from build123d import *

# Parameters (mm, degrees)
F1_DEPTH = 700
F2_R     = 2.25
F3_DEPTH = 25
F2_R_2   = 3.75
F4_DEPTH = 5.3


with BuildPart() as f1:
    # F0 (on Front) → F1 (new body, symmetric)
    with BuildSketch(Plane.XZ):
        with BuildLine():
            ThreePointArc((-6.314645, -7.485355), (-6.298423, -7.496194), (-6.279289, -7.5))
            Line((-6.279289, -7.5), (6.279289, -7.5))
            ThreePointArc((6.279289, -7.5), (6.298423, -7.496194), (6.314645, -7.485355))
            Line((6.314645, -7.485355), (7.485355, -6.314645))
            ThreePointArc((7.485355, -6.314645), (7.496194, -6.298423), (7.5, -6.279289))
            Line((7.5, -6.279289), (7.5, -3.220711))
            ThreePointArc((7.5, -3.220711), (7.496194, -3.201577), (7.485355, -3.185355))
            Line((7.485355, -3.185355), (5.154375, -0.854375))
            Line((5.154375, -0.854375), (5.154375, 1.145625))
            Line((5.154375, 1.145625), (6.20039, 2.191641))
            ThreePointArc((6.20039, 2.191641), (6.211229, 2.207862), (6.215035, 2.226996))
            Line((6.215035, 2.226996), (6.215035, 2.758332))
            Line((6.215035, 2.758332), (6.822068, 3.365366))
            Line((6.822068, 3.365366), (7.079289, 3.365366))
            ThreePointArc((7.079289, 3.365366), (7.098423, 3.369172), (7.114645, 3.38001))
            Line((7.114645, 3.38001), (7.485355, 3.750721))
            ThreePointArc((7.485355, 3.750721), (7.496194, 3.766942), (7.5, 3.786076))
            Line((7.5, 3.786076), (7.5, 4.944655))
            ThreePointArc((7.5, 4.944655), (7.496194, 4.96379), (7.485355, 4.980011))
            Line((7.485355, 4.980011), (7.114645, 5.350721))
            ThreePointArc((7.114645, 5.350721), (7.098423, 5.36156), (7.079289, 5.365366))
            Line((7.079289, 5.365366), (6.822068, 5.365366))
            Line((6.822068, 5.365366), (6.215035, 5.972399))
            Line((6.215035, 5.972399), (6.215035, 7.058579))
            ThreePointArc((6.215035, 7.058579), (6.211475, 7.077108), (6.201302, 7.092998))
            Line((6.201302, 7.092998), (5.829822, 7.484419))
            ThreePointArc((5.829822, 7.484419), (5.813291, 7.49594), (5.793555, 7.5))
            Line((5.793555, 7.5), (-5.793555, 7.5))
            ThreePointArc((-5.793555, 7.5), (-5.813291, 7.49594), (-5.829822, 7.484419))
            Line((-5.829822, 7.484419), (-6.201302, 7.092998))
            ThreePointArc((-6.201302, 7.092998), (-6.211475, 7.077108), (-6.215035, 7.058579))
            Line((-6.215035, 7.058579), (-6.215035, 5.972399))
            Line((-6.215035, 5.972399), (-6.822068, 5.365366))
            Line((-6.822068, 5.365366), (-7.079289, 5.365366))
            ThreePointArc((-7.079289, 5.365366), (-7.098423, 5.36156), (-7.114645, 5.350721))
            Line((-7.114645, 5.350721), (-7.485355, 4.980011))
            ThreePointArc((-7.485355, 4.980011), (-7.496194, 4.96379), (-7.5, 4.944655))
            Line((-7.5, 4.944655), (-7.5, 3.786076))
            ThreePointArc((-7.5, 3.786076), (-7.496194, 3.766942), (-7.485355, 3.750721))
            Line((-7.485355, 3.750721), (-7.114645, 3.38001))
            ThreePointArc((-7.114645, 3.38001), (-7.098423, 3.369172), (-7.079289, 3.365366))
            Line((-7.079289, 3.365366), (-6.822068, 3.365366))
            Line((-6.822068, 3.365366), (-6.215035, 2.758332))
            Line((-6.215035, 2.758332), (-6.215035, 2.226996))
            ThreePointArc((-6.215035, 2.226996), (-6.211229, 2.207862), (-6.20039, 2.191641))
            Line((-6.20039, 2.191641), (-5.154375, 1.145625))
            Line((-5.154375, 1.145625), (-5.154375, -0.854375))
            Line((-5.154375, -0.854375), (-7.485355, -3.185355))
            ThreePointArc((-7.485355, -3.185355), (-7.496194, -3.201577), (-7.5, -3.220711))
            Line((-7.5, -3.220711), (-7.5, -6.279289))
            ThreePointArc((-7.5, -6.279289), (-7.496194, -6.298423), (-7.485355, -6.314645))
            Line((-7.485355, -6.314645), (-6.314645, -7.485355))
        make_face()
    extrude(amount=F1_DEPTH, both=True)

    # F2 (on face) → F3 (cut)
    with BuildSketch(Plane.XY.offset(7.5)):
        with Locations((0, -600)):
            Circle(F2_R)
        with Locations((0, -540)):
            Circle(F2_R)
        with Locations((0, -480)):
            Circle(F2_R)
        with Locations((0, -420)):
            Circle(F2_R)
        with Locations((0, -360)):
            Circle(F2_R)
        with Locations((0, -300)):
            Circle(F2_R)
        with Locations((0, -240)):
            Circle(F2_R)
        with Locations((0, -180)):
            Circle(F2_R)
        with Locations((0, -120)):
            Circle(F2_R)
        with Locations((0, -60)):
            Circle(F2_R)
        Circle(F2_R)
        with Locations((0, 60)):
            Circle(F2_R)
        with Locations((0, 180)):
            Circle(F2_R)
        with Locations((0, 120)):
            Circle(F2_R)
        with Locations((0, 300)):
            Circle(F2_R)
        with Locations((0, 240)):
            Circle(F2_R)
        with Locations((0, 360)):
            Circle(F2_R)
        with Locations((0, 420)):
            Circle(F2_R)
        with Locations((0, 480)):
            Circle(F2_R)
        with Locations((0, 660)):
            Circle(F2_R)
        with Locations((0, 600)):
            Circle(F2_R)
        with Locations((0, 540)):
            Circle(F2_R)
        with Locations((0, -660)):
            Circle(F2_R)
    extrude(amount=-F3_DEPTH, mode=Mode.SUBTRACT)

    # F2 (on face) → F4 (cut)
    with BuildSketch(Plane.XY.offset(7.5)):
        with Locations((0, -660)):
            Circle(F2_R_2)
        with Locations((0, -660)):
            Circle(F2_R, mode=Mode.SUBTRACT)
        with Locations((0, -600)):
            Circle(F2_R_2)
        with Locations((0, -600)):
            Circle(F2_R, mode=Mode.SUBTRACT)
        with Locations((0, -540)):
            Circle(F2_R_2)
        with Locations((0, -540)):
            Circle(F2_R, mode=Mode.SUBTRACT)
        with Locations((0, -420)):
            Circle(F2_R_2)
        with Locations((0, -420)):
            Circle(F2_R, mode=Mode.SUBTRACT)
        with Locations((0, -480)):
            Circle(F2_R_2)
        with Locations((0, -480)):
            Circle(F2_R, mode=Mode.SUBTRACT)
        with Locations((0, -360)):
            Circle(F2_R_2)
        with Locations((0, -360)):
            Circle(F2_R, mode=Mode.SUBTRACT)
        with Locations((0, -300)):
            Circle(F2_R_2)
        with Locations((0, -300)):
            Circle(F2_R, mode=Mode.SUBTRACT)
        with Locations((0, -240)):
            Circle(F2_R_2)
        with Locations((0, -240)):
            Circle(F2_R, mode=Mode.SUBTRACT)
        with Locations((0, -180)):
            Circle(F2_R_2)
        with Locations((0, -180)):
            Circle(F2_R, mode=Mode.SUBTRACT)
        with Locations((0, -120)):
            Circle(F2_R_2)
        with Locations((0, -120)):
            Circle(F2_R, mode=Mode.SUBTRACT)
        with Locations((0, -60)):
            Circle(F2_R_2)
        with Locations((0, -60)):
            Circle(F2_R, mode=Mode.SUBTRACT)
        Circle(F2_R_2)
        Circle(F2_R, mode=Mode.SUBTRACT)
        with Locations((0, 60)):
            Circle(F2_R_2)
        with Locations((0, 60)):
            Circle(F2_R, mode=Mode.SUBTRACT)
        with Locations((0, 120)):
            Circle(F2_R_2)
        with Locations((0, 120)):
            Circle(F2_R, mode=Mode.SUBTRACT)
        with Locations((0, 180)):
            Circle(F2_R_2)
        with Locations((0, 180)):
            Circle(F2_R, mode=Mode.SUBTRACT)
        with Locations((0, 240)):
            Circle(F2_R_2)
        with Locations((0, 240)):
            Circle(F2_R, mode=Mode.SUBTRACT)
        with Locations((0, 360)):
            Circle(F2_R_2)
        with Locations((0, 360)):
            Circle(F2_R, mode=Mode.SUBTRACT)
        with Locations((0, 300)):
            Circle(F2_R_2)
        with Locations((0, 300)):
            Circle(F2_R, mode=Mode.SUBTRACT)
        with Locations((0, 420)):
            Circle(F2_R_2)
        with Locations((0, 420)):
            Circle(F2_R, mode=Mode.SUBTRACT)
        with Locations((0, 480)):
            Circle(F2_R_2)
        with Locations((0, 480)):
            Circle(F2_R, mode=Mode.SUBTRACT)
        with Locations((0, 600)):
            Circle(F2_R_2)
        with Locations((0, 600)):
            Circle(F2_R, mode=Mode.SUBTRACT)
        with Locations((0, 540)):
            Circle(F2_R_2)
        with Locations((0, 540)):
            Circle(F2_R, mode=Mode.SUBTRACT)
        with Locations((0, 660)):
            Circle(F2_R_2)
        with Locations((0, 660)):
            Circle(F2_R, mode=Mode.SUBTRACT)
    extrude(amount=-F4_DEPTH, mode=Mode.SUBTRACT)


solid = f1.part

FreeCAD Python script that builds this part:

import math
import FreeCAD as App
import Part
import Sketcher
Q = App.Units.Quantity

doc = App.newDocument("Part")
body = doc.addObject("PartDesign::Body", "Body")

sketch1 = body.newObject("Sketcher::SketchObject", "Sketch")
sketch1.AttachmentSupport = (doc.getObject("XZ_Plane"), [""])
sketch1.MapMode = "FlatFace"
sketch1.addGeometry(Part.ArcOfCircle(Part.Circle(App.Vector(-6.279, -7.45, 0), App.Vector(0, 0, 1), 0.05), math.radians(-135), math.radians(-90)), False)
sketch1.addGeometry(Part.LineSegment(App.Vector(-6.279, -7.5, 0), App.Vector(6.279, -7.5, 0)), False)
sketch1.addGeometry(Part.ArcOfCircle(Part.Circle(App.Vector(6.279, -7.45, 0), App.Vector(0, 0, 1), 0.05), math.radians(-90), math.radians(-45)), False)
sketch1.addGeometry(Part.LineSegment(App.Vector(6.315, -7.485, 0), App.Vector(7.485, -6.315, 0)), False)
sketch1.addGeometry(Part.ArcOfCircle(Part.Circle(App.Vector(7.45, -6.279, 0), App.Vector(0, 0, 1), 0.05), math.radians(-45), math.radians(0)), False)
sketch1.addGeometry(Part.LineSegment(App.Vector(7.5, -6.279, 0), App.Vector(7.5, -3.221, 0)), False)
sketch1.addGeometry(Part.ArcOfCircle(Part.Circle(App.Vector(7.45, -3.221, 0), App.Vector(0, 0, 1), 0.05), math.radians(0), math.radians(45)), False)
sketch1.addGeometry(Part.LineSegment(App.Vector(7.485, -3.185, 0), App.Vector(5.154, -0.854, 0)), False)
sketch1.addGeometry(Part.LineSegment(App.Vector(5.154, -0.854, 0), App.Vector(5.154, 1.146, 0)), False)
sketch1.addGeometry(Part.LineSegment(App.Vector(5.154, 1.146, 0), App.Vector(6.2, 2.192, 0)), False)
sketch1.addGeometry(Part.ArcOfCircle(Part.Circle(App.Vector(6.165, 2.227, 0), App.Vector(0, 0, 1), 0.05), math.radians(-45), math.radians(0)), False)
sketch1.addGeometry(Part.LineSegment(App.Vector(6.215, 2.227, 0), App.Vector(6.215, 2.758, 0)), False)
sketch1.addGeometry(Part.LineSegment(App.Vector(6.215, 2.758, 0), App.Vector(6.822, 3.365, 0)), False)
sketch1.addGeometry(Part.LineSegment(App.Vector(6.822, 3.365, 0), App.Vector(7.079, 3.365, 0)), False)
sketch1.addGeometry(Part.ArcOfCircle(Part.Circle(App.Vector(7.079, 3.415, 0), App.Vector(0, 0, 1), 0.05), math.radians(-90), math.radians(-45)), False)
sketch1.addGeometry(Part.LineSegment(App.Vector(7.115, 3.38, 0), App.Vector(7.485, 3.751, 0)), False)
sketch1.addGeometry(Part.ArcOfCircle(Part.Circle(App.Vector(7.45, 3.786, 0), App.Vector(0, 0, 1), 0.05), math.radians(-45), math.radians(0)), False)
sketch1.addGeometry(Part.LineSegment(App.Vector(7.5, 3.786, 0), App.Vector(7.5, 4.945, 0)), False)
sketch1.addGeometry(Part.ArcOfCircle(Part.Circle(App.Vector(7.45, 4.945, 0), App.Vector(0, 0, 1), 0.05), math.radians(0), math.radians(45)), False)
sketch1.addGeometry(Part.LineSegment(App.Vector(7.485, 4.98, 0), App.Vector(7.115, 5.351, 0)), False)
sketch1.addGeometry(Part.ArcOfCircle(Part.Circle(App.Vector(7.079, 5.315, 0), App.Vector(0, 0, 1), 0.05), math.radians(45), math.radians(90)), False)
sketch1.addGeometry(Part.LineSegment(App.Vector(7.079, 5.365, 0), App.Vector(6.822, 5.365, 0)), False)
sketch1.addGeometry(Part.LineSegment(App.Vector(6.822, 5.365, 0), App.Vector(6.215, 5.972, 0)), False)
sketch1.addGeometry(Part.LineSegment(App.Vector(6.215, 5.972, 0), App.Vector(6.215, 7.059, 0)), False)
sketch1.addGeometry(Part.ArcOfCircle(Part.Circle(App.Vector(6.165, 7.059, 0), App.Vector(0, 0, 1), 0.05), math.radians(0), math.radians(44)), False)
sketch1.addGeometry(Part.LineSegment(App.Vector(6.201, 7.093, 0), App.Vector(5.83, 7.484, 0)), False)
sketch1.addGeometry(Part.ArcOfCircle(Part.Circle(App.Vector(5.794, 7.45, 0), App.Vector(0, 0, 1), 0.05), math.radians(44), math.radians(90)), False)
sketch1.addGeometry(Part.LineSegment(App.Vector(5.794, 7.5, 0), App.Vector(-5.794, 7.5, 0)), False)
sketch1.addGeometry(Part.ArcOfCircle(Part.Circle(App.Vector(-5.794, 7.45, 0), App.Vector(0, 0, 1), 0.05), math.radians(90), math.radians(136)), False)
sketch1.addGeometry(Part.LineSegment(App.Vector(-5.83, 7.484, 0), App.Vector(-6.201, 7.093, 0)), False)
sketch1.addGeometry(Part.ArcOfCircle(Part.Circle(App.Vector(-6.165, 7.059, 0), App.Vector(0, 0, 1), 0.05), math.radians(136), math.radians(180)), False)
sketch1.addGeometry(Part.LineSegment(App.Vector(-6.215, 7.059, 0), App.Vector(-6.215, 5.972, 0)), False)
sketch1.addGeometry(Part.LineSegment(App.Vector(-6.215, 5.972, 0), App.Vector(-6.822, 5.365, 0)), False)
sketch1.addGeometry(Part.LineSegment(App.Vector(-6.822, 5.365, 0), App.Vector(-7.079, 5.365, 0)), False)
sketch1.addGeometry(Part.ArcOfCircle(Part.Circle(App.Vector(-7.079, 5.315, 0), App.Vector(0, 0, 1), 0.05), math.radians(90), math.radians(135)), False)
sketch1.addGeometry(Part.LineSegment(App.Vector(-7.115, 5.351, 0), App.Vector(-7.485, 4.98, 0)), False)
sketch1.addGeometry(Part.ArcOfCircle(Part.Circle(App.Vector(-7.45, 4.945, 0), App.Vector(0, 0, 1), 0.05), math.radians(135), math.radians(180)), False)
sketch1.addGeometry(Part.LineSegment(App.Vector(-7.5, 4.945, 0), App.Vector(-7.5, 3.786, 0)), False)
sketch1.addGeometry(Part.ArcOfCircle(Part.Circle(App.Vector(-7.45, 3.786, 0), App.Vector(0, 0, 1), 0.05), math.radians(180), math.radians(225)), False)
sketch1.addGeometry(Part.LineSegment(App.Vector(-7.485, 3.751, 0), App.Vector(-7.115, 3.38, 0)), False)
sketch1.addGeometry(Part.ArcOfCircle(Part.Circle(App.Vector(-7.079, 3.415, 0), App.Vector(0, 0, 1), 0.05), math.radians(-135), math.radians(-90)), False)
sketch1.addGeometry(Part.LineSegment(App.Vector(-7.079, 3.365, 0), App.Vector(-6.822, 3.365, 0)), False)
sketch1.addGeometry(Part.LineSegment(App.Vector(-6.822, 3.365, 0), App.Vector(-6.215, 2.758, 0)), False)
sketch1.addGeometry(Part.LineSegment(App.Vector(-6.215, 2.758, 0), App.Vector(-6.215, 2.227, 0)), False)
sketch1.addGeometry(Part.ArcOfCircle(Part.Circle(App.Vector(-6.165, 2.227, 0), App.Vector(0, 0, 1), 0.05), math.radians(180), math.radians(225)), False)
sketch1.addGeometry(Part.LineSegment(App.Vector(-6.2, 2.192, 0), App.Vector(-5.154, 1.146, 0)), False)
sketch1.addGeometry(Part.LineSegment(App.Vector(-5.154, 1.146, 0), App.Vector(-5.154, -0.854, 0)), False)
sketch1.addGeometry(Part.LineSegment(App.Vector(-5.154, -0.854, 0), App.Vector(-7.485, -3.185, 0)), False)
sketch1.addGeometry(Part.ArcOfCircle(Part.Circle(App.Vector(-7.45, -3.221, 0), App.Vector(0, 0, 1), 0.05), math.radians(135), math.radians(180)), False)
sketch1.addGeometry(Part.LineSegment(App.Vector(-7.5, -3.221, 0), App.Vector(-7.5, -6.279, 0)), False)
sketch1.addGeometry(Part.ArcOfCircle(Part.Circle(App.Vector(-7.45, -6.279, 0), App.Vector(0, 0, 1), 0.05), math.radians(-180), math.radians(-135)), False)
sketch1.addGeometry(Part.LineSegment(App.Vector(-7.485, -6.315, 0), App.Vector(-6.315, -7.485, 0)), False)
sketch1.addConstraint(Sketcher.Constraint("Coincident", 0, 2, 1, 1))
sketch1.addConstraint(Sketcher.Constraint("Coincident", 1, 2, 2, 1))
sketch1.addConstraint(Sketcher.Constraint("Coincident", 2, 2, 3, 1))
sketch1.addConstraint(Sketcher.Constraint("Coincident", 3, 2, 4, 1))
sketch1.addConstraint(Sketcher.Constraint("Coincident", 4, 2, 5, 1))
sketch1.addConstraint(Sketcher.Constraint("Coincident", 5, 2, 6, 1))
sketch1.addConstraint(Sketcher.Constraint("Coincident", 6, 2, 7, 1))
sketch1.addConstraint(Sketcher.Constraint("Coincident", 7, 2, 8, 1))
sketch1.addConstraint(Sketcher.Constraint("Coincident", 8, 2, 9, 1))
sketch1.addConstraint(Sketcher.Constraint("Coincident", 9, 2, 10, 1))
sketch1.addConstraint(Sketcher.Constraint("Coincident", 10, 2, 11, 1))
sketch1.addConstraint(Sketcher.Constraint("Coincident", 11, 2, 12, 1))
sketch1.addConstraint(Sketcher.Constraint("Coincident", 12, 2, 13, 1))
sketch1.addConstraint(Sketcher.Constraint("Coincident", 13, 2, 14, 1))
sketch1.addConstraint(Sketcher.Constraint("Coincident", 14, 2, 15, 1))
sketch1.addConstraint(Sketcher.Constraint("Coincident", 15, 2, 16, 1))
sketch1.addConstraint(Sketcher.Constraint("Coincident", 16, 2, 17, 1))
sketch1.addConstraint(Sketcher.Constraint("Coincident", 17, 2, 18, 1))
sketch1.addConstraint(Sketcher.Constraint("Coincident", 18, 2, 19, 1))
sketch1.addConstraint(Sketcher.Constraint("Coincident", 19, 2, 20, 1))
sketch1.addConstraint(Sketcher.Constraint("Coincident", 20, 2, 21, 1))
sketch1.addConstraint(Sketcher.Constraint("Coincident", 21, 2, 22, 1))
sketch1.addConstraint(Sketcher.Constraint("Coincident", 22, 2, 23, 1))
sketch1.addConstraint(Sketcher.Constraint("Coincident", 23, 2, 24, 1))
sketch1.addConstraint(Sketcher.Constraint("Coincident", 24, 2, 25, 1))
sketch1.addConstraint(Sketcher.Constraint("Coincident", 25, 2, 26, 1))
sketch1.addConstraint(Sketcher.Constraint("Coincident", 26, 2, 27, 1))
sketch1.addConstraint(Sketcher.Constraint("Coincident", 27, 2, 28, 1))
sketch1.addConstraint(Sketcher.Constraint("Coincident", 28, 2, 29, 1))
sketch1.addConstraint(Sketcher.Constraint("Coincident", 29, 2, 30, 1))
sketch1.addConstraint(Sketcher.Constraint("Coincident", 30, 2, 31, 1))
sketch1.addConstraint(Sketcher.Constraint("Coincident", 31, 2, 32, 1))
sketch1.addConstraint(Sketcher.Constraint("Coincident", 32, 2, 33, 1))
sketch1.addConstraint(Sketcher.Constraint("Coincident", 33, 2, 34, 1))
sketch1.addConstraint(Sketcher.Constraint("Coincident", 34, 2, 35, 1))
sketch1.addConstraint(Sketcher.Constraint("Coincident", 35, 2, 36, 1))
sketch1.addConstraint(Sketcher.Constraint("Coincident", 36, 2, 37, 1))
sketch1.addConstraint(Sketcher.Constraint("Coincident", 37, 2, 38, 1))
sketch1.addConstraint(Sketcher.Constraint("Coincident", 38, 2, 39, 1))
sketch1.addConstraint(Sketcher.Constraint("Coincident", 39, 2, 40, 1))
sketch1.addConstraint(Sketcher.Constraint("Coincident", 40, 2, 41, 1))
sketch1.addConstraint(Sketcher.Constraint("Coincident", 41, 2, 42, 1))
sketch1.addConstraint(Sketcher.Constraint("Coincident", 42, 2, 43, 1))
sketch1.addConstraint(Sketcher.Constraint("Coincident", 43, 2, 44, 1))
sketch1.addConstraint(Sketcher.Constraint("Coincident", 44, 2, 45, 1))
sketch1.addConstraint(Sketcher.Constraint("Coincident", 45, 2, 46, 1))
sketch1.addConstraint(Sketcher.Constraint("Coincident", 46, 2, 47, 1))
sketch1.addConstraint(Sketcher.Constraint("Coincident", 47, 2, 48, 1))
sketch1.addConstraint(Sketcher.Constraint("Coincident", 48, 2, 49, 1))
sketch1.addConstraint(Sketcher.Constraint("Coincident", 49, 2, 50, 1))
sketch1.addConstraint(Sketcher.Constraint("Coincident", 50, 2, 51, 1))
sketch1.addConstraint(Sketcher.Constraint("Coincident", 51, 2, 0, 1))
sketch1.addConstraint(Sketcher.Constraint("Horizontal", 1))
sketch1.addConstraint(Sketcher.Constraint("Vertical", 5))
sketch1.addConstraint(Sketcher.Constraint("Vertical", 8))
sketch1.addConstraint(Sketcher.Constraint("Vertical", 11))
sketch1.addConstraint(Sketcher.Constraint("Horizontal", 13))
sketch1.addConstraint(Sketcher.Constraint("Vertical", 17))
sketch1.addConstraint(Sketcher.Constraint("Horizontal", 21))
sketch1.addConstraint(Sketcher.Constraint("Vertical", 23))
sketch1.addConstraint(Sketcher.Constraint("Horizontal", 27))
sketch1.addConstraint(Sketcher.Constraint("Vertical", 31))
sketch1.addConstraint(Sketcher.Constraint("Horizontal", 33))
sketch1.addConstraint(Sketcher.Constraint("Vertical", 37))
sketch1.addConstraint(Sketcher.Constraint("Horizontal", 41))
sketch1.addConstraint(Sketcher.Constraint("Vertical", 43))
sketch1.addConstraint(Sketcher.Constraint("Vertical", 46))
sketch1.addConstraint(Sketcher.Constraint("Vertical", 49))
sketch1.addConstraint(Sketcher.Constraint("Equal", 0, 2))
sketch1.addConstraint(Sketcher.Constraint("Equal", 2, 4))
sketch1.addConstraint(Sketcher.Constraint("Equal", 4, 6))
sketch1.addConstraint(Sketcher.Constraint("Equal", 10, 16))
sketch1.addConstraint(Sketcher.Constraint("Equal", 16, 18))
sketch1.addConstraint(Sketcher.Constraint("Equal", 6, 20))
sketch1.addConstraint(Sketcher.Constraint("Equal", 18, 24))
sketch1.addConstraint(Sketcher.Constraint("Equal", 24, 26))
sketch1.addConstraint(Sketcher.Constraint("Equal", 26, 28))
sketch1.addConstraint(Sketcher.Constraint("Equal", 28, 30))
sketch1.addConstraint(Sketcher.Constraint("Equal", 20, 34))
sketch1.addConstraint(Sketcher.Constraint("Equal", 30, 36))
sketch1.addConstraint(Sketcher.Constraint("Equal", 36, 38))
sketch1.addConstraint(Sketcher.Constraint("Equal", 14, 40))
sketch1.addConstraint(Sketcher.Constraint("Equal", 38, 44))
sketch1.addConstraint(Sketcher.Constraint("Equal", 34, 48))
sketch1.addConstraint(Sketcher.Constraint("Equal", 48, 50))
sketch1.addConstraint(Sketcher.Constraint("Symmetric", 24, 3, 30, 3, -2))
sketch1.addConstraint(Sketcher.Constraint("Symmetric", 20, 3, 34, 3, -2))
sketch1.addConstraint(Sketcher.Constraint("Symmetric", 18, 3, 36, 3, -2))
sketch1.addConstraint(Sketcher.Constraint("Symmetric", 14, 3, 40, 3, -2))
sketch1.addConstraint(Sketcher.Constraint("Symmetric", 10, 3, 44, 3, -2))
sketch1.addConstraint(Sketcher.Constraint("Symmetric", 6, 3, 48, 3, -2))
sketch1.addConstraint(Sketcher.Constraint("Symmetric", 25, 2, 28, 2, -2))
sketch1.addConstraint(Sketcher.Constraint("Symmetric", 15, 2, 38, 2, -2))
sketch1.addConstraint(Sketcher.Constraint("Symmetric", 8, 2, 45, 2, -2))
sketch1.addConstraint(Sketcher.Constraint("Symmetric", 3, 2, 50, 2, -2))
sketch1.addConstraint(Sketcher.Constraint("Symmetric", 2, 2, 51, 2, -2))
sketch1.addConstraint(Sketcher.Constraint("Perpendicular", 3, 7))
sketch1.addConstraint(Sketcher.Constraint("Perpendicular", 7, 9))
sketch1.addConstraint(Sketcher.Constraint("Parallel", 9, 12))
sketch1.addConstraint(Sketcher.Constraint("Parallel", 12, 15))
sketch1.addConstraint(Sketcher.Constraint("Perpendicular", 15, 19))
sketch1.addConstraint(Sketcher.Constraint("Parallel", 19, 22))
sketch1.addConstraint(Sketcher.Constraint("Perpendicular", 22, 32))
sketch1.addConstraint(Sketcher.Constraint("Parallel", 32, 35))
sketch1.addConstraint(Sketcher.Constraint("Parallel", 39, 42))
sketch1.addConstraint(Sketcher.Constraint("Perpendicular", 45, 47))
sketch1.addConstraint(Sketcher.Constraint("Horizontal", 50, 3, 4, 2))
sketch1.addConstraint(Sketcher.Constraint("Horizontal", 48, 3, 5, 2))
sketch1.addConstraint(Sketcher.Constraint("Horizontal", 44, 3, 10, 2))
sketch1.addConstraint(Sketcher.Constraint("Horizontal", 38, 3, 16, 2))
sketch1.addConstraint(Sketcher.Constraint("Horizontal", 36, 3, 17, 2))
sketch1.addConstraint(Sketcher.Constraint("Horizontal", 30, 3, 23, 2))
sketch1.addConstraint(Sketcher.Constraint("Horizontal", 24, 2, 29, 2))
sketch1.addConstraint(Sketcher.Constraint("Horizontal", 23, 2, 30, 2))
sketch1.addConstraint(Sketcher.Constraint("Horizontal", 22, 2, 31, 2))
sketch1.addConstraint(Sketcher.Constraint("Horizontal", 19, 2, 34, 2))
sketch1.addConstraint(Sketcher.Constraint("Horizontal", 18, 2, 35, 2))
sketch1.addConstraint(Sketcher.Constraint("Horizontal", 17, 2, 36, 2))
sketch1.addConstraint(Sketcher.Constraint("Horizontal", 16, 2, 37, 2))
sketch1.addConstraint(Sketcher.Constraint("Horizontal", 14, 2, 39, 2))
sketch1.addConstraint(Sketcher.Constraint("Horizontal", 11, 2, 42, 2))
sketch1.addConstraint(Sketcher.Constraint("Horizontal", 10, 2, 43, 2))
sketch1.addConstraint(Sketcher.Constraint("Horizontal", 9, 2, 44, 2))
sketch1.addConstraint(Sketcher.Constraint("Horizontal", 6, 2, 47, 2))
sketch1.addConstraint(Sketcher.Constraint("Horizontal", 5, 2, 48, 2))
sketch1.addConstraint(Sketcher.Constraint("Horizontal", 4, 2, 49, 2))
sketch1.addConstraint(Sketcher.Constraint("Vertical", 14, 3, 20, 3))
sketch1.addConstraint(Sketcher.Constraint("Vertical", 10, 3, 24, 3))
sketch1.addConstraint(Sketcher.Constraint("Vertical", 2, 3, 1, 2))
sketch1.addConstraint(Sketcher.Constraint("Vertical", 3, 2, 6, 2))
sketch1.addConstraint(Sketcher.Constraint("Vertical", 20, 3, 13, 2))
sketch1.addConstraint(Sketcher.Constraint("Vertical", 6, 2, 15, 2))
sketch1.addConstraint(Sketcher.Constraint("Vertical", 5, 2, 16, 2))
sketch1.addConstraint(Sketcher.Constraint("Vertical", 15, 2, 18, 2))
sketch1.addConstraint(Sketcher.Constraint("Vertical", 14, 2, 19, 2))
sketch1.addConstraint(Sketcher.Constraint("Vertical", 13, 2, 20, 2))
sketch1.addConstraint(Sketcher.Constraint("Vertical", 12, 2, 21, 2))
sketch1.addConstraint(Sketcher.Constraint("Vertical", 28, 3, 27, 2))
sketch1.addConstraint(Sketcher.Constraint("Vertical", 40, 3, 33, 2))
sketch1.addConstraint(Sketcher.Constraint("Vertical", 33, 2, 40, 2))
sketch1.addConstraint(Sketcher.Constraint("DistanceY", 8, 1, 8, 2, Q("2 mm")))
sketch1.addConstraint(Sketcher.Constraint("Radius", 26, Q("0.049998 mm")))
sketch1.addConstraint(Sketcher.Constraint("DistanceY", 0, 2, -1, 1, Q("7.5 mm")))
sketch1.addConstraint(Sketcher.Constraint("DistanceX", -1, 1, 4, 2, Q("7.5 mm")))
sketch1.addConstraint(Sketcher.Constraint("DistanceY", -1, 1, 26, 2, Q("7.5 mm")))
sketch1.addConstraint(Sketcher.Constraint("Radius", 0, Q("0.050002 mm")))
sketch1.addConstraint(Sketcher.Constraint("Radius", 14, Q("0.050007 mm")))
sketch1.addConstraint(Sketcher.Constraint("DistanceX", 1, 1, 1, 2, Q("12.558578 mm")))
sketch1.addConstraint(Sketcher.Constraint("DistanceX", 13, 1, 13, 2, Q("0.257221 mm")))
sketch1.addConstraint(Sketcher.Constraint("DistanceX", 27, 2, 27, 1, Q("11.58711 mm")))
sketch1.addConstraint(Sketcher.Constraint("DistanceY", 5, 1, 5, 2, Q("3.058578 mm")))
sketch1.addConstraint(Sketcher.Constraint("DistanceY", 17, 1, 17, 2, Q("1.158579 mm")))
sketch1.addConstraint(Sketcher.Constraint("DistanceY", 23, 1, 23, 2, Q("1.08618 mm")))
sketch1.addConstraint(Sketcher.Constraint("DistanceY", -1, 1, 22, 2, Q("5.972399 mm")))
sketch1.addConstraint(Sketcher.Constraint("DistanceX", -1, 1, 24, 2, Q("6.201302 mm")))
sketch1.addConstraint(Sketcher.Constraint("Distance", 9, Q("1.479289 mm")))
sketch1.addConstraint(Sketcher.Constraint("DistanceY", 11, 1, 11, 2, Q("0.531336 mm")))
sketch1.addConstraint(Sketcher.Constraint("DistanceX", 0, 3, -1, 1, Q("6.279288 mm")))
sketch1.addConstraint(Sketcher.Constraint("DistanceX", -1, 1, 20, 3, Q("7.079288 mm")))
sketch1.addConstraint(Sketcher.Constraint("DistanceX", -1, 1, 9, 2, Q("6.20039 mm")))
sketch1.addConstraint(Sketcher.Constraint("DistanceY", -1, 1, 14, 2, Q("3.38001 mm")))
sketch1.addConstraint(Sketcher.Constraint("DistanceY", -1, 1, 15, 2, Q("3.750721 mm")))
sketch1.addConstraint(Sketcher.Constraint("DistanceY", -1, 1, 25, 2, Q("7.484419 mm")))
sketch1.addConstraint(Sketcher.Constraint("Distance", 3, Q("1.655634 mm")))
sketch1.addConstraint(Sketcher.Constraint("Distance", 25, Q("0.539637 mm")))
pad1 = body.newObject("PartDesign::Pad", "Pad")
pad1.Profile = sketch1
pad1.Length = 1400
pad1.Midplane = True

sketch2 = body.newObject("Sketcher::SketchObject", "Sketch001")
sketch2.AttachmentSupport = (doc.getObject("XY_Plane"), [""])
sketch2.MapMode = "FlatFace"
sketch2.AttachmentOffset = App.Placement(App.Vector(0, 0, 7.5), App.Rotation())
sketch2.addGeometry(Part.Circle(App.Vector(0, -600, 0), App.Vector(0, 0, 1), 2.2), False)
sketch2.addGeometry(Part.Circle(App.Vector(0, -540, 0), App.Vector(0, 0, 1), 2.2), False)
sketch2.addGeometry(Part.Circle(App.Vector(0, -480, 0), App.Vector(0, 0, 1), 2.2), False)
sketch2.addGeometry(Part.Circle(App.Vector(0, -420, 0), App.Vector(0, 0, 1), 2.2), False)
sketch2.addGeometry(Part.Circle(App.Vector(0, -360, 0), App.Vector(0, 0, 1), 2.2), False)
sketch2.addGeometry(Part.Circle(App.Vector(0, -300, 0), App.Vector(0, 0, 1), 2.2), False)
sketch2.addGeometry(Part.Circle(App.Vector(0, -240, 0), App.Vector(0, 0, 1), 2.2), False)
sketch2.addGeometry(Part.Circle(App.Vector(0, -180, 0), App.Vector(0, 0, 1), 2.2), False)
sketch2.addGeometry(Part.Circle(App.Vector(0, -120, 0), App.Vector(0, 0, 1), 2.2), False)
sketch2.addGeometry(Part.Circle(App.Vector(0, -60, 0), App.Vector(0, 0, 1), 2.2), False)
sketch2.addGeometry(Part.Circle(App.Vector(0, 0, 0), App.Vector(0, 0, 1), 2.2), False)
sketch2.addGeometry(Part.Circle(App.Vector(0, 60, 0), App.Vector(0, 0, 1), 2.2), False)
sketch2.addGeometry(Part.Circle(App.Vector(0, 180, 0), App.Vector(0, 0, 1), 2.2), False)
sketch2.addGeometry(Part.Circle(App.Vector(0, 120, 0), App.Vector(0, 0, 1), 2.2), False)
sketch2.addGeometry(Part.Circle(App.Vector(0, 300, 0), App.Vector(0, 0, 1), 2.2), False)
sketch2.addGeometry(Part.Circle(App.Vector(0, 240, 0), App.Vector(0, 0, 1), 2.2), False)
sketch2.addGeometry(Part.Circle(App.Vector(0, 360, 0), App.Vector(0, 0, 1), 2.2), False)
sketch2.addGeometry(Part.Circle(App.Vector(0, 420, 0), App.Vector(0, 0, 1), 2.2), False)
sketch2.addGeometry(Part.Circle(App.Vector(0, 480, 0), App.Vector(0, 0, 1), 2.2), False)
sketch2.addGeometry(Part.Circle(App.Vector(0, 660, 0), App.Vector(0, 0, 1), 2.2), False)
sketch2.addGeometry(Part.Circle(App.Vector(0, 600, 0), App.Vector(0, 0, 1), 2.2), False)
sketch2.addGeometry(Part.Circle(App.Vector(0, 540, 0), App.Vector(0, 0, 1), 2.2), False)
sketch2.addGeometry(Part.Circle(App.Vector(0, -660, 0), App.Vector(0, 0, 1), 2.2), False)
sketch2.addConstraint(Sketcher.Constraint("Coincident", 10, 3, -1, 1))
sketch2.addConstraint(Sketcher.Constraint("Equal", 0, 1))
sketch2.addConstraint(Sketcher.Constraint("Equal", 1, 2))
sketch2.addConstraint(Sketcher.Constraint("Equal", 2, 3))
sketch2.addConstraint(Sketcher.Constraint("Equal", 3, 4))
sketch2.addConstraint(Sketcher.Constraint("Equal", 4, 5))
sketch2.addConstraint(Sketcher.Constraint("Equal", 5, 6))
sketch2.addConstraint(Sketcher.Constraint("Equal", 6, 7))
sketch2.addConstraint(Sketcher.Constraint("Equal", 7, 8))
sketch2.addConstraint(Sketcher.Constraint("Equal", 8, 9))
sketch2.addConstraint(Sketcher.Constraint("Equal", 9, 10))
sketch2.addConstraint(Sketcher.Constraint("Equal", 10, 11))
sketch2.addConstraint(Sketcher.Constraint("Equal", 11, 12))
sketch2.addConstraint(Sketcher.Constraint("Equal", 12, 13))
sketch2.addConstraint(Sketcher.Constraint("Equal", 13, 14))
sketch2.addConstraint(Sketcher.Constraint("Equal", 14, 15))
sketch2.addConstraint(Sketcher.Constraint("Equal", 15, 16))
sketch2.addConstraint(Sketcher.Constraint("Equal", 16, 17))
sketch2.addConstraint(Sketcher.Constraint("Equal", 17, 18))
sketch2.addConstraint(Sketcher.Constraint("Equal", 18, 19))
sketch2.addConstraint(Sketcher.Constraint("Equal", 19, 20))
sketch2.addConstraint(Sketcher.Constraint("Equal", 20, 21))
sketch2.addConstraint(Sketcher.Constraint("Equal", 21, 22))
sketch2.addConstraint(Sketcher.Constraint("Symmetric", 9, 3, 11, 3, -1, 1))
sketch2.addConstraint(Sketcher.Constraint("Symmetric", 7, 3, 12, 3, -1, 1))
sketch2.addConstraint(Sketcher.Constraint("Symmetric", 8, 3, 13, 3, -1, 1))
sketch2.addConstraint(Sketcher.Constraint("Symmetric", 5, 3, 14, 3, -1, 1))
sketch2.addConstraint(Sketcher.Constraint("Symmetric", 6, 3, 15, 3, -1, 1))
sketch2.addConstraint(Sketcher.Constraint("Symmetric", 4, 3, 16, 3, -1, 1))
sketch2.addConstraint(Sketcher.Constraint("Symmetric", 3, 3, 17, 3, -1, 1))
sketch2.addConstraint(Sketcher.Constraint("Symmetric", 2, 3, 18, 3, -1, 1))
sketch2.addConstraint(Sketcher.Constraint("Symmetric", 0, 3, 20, 3, -1, 1))
sketch2.addConstraint(Sketcher.Constraint("Symmetric", 1, 3, 21, 3, -1, 1))
sketch2.addConstraint(Sketcher.Constraint("Symmetric", 19, 3, 22, 3, -1, 1))
sketch2.addConstraint(Sketcher.Constraint("PointOnObject", 0, 3, -2))
sketch2.addConstraint(Sketcher.Constraint("PointOnObject", 1, 3, -2))
sketch2.addConstraint(Sketcher.Constraint("PointOnObject", 2, 3, -2))
sketch2.addConstraint(Sketcher.Constraint("PointOnObject", 3, 3, -2))
sketch2.addConstraint(Sketcher.Constraint("PointOnObject", 4, 3, -2))
sketch2.addConstraint(Sketcher.Constraint("PointOnObject", 5, 3, -2))
sketch2.addConstraint(Sketcher.Constraint("PointOnObject", 6, 3, -2))
sketch2.addConstraint(Sketcher.Constraint("PointOnObject", 7, 3, -2))
sketch2.addConstraint(Sketcher.Constraint("PointOnObject", 8, 3, -2))
sketch2.addConstraint(Sketcher.Constraint("PointOnObject", 9, 3, -2))
sketch2.addConstraint(Sketcher.Constraint("PointOnObject", 19, 3, -2))
sketch2.addConstraint(Sketcher.Constraint("Diameter", 0, Q("4.5 mm")))
sketch2.addConstraint(Sketcher.Constraint("DistanceY", 0, 3, -1, 1, Q("600 mm")))
sketch2.addConstraint(Sketcher.Constraint("DistanceY", 1, 3, -1, 1, Q("540 mm")))
sketch2.addConstraint(Sketcher.Constraint("DistanceY", 2, 3, -1, 1, Q("480 mm")))
sketch2.addConstraint(Sketcher.Constraint("DistanceY", 3, 3, -1, 1, Q("420 mm")))
sketch2.addConstraint(Sketcher.Constraint("DistanceY", 4, 3, -1, 1, Q("360 mm")))
sketch2.addConstraint(Sketcher.Constraint("DistanceY", 5, 3, -1, 1, Q("300 mm")))
sketch2.addConstraint(Sketcher.Constraint("DistanceY", 6, 3, -1, 1, Q("240 mm")))
sketch2.addConstraint(Sketcher.Constraint("DistanceY", 7, 3, -1, 1, Q("180 mm")))
sketch2.addConstraint(Sketcher.Constraint("DistanceY", 8, 3, -1, 1, Q("120 mm")))
sketch2.addConstraint(Sketcher.Constraint("DistanceY", 9, 3, -1, 1, Q("60 mm")))
sketch2.addConstraint(Sketcher.Constraint("DistanceY", -1, 1, 19, 3, Q("660 mm")))
pocket1 = body.newObject("PartDesign::Pocket", "Pocket")
pocket1.Profile = sketch2
pocket1.Length = 25

sketch3 = body.newObject("Sketcher::SketchObject", "Sketch002")
sketch3.AttachmentSupport = (doc.getObject("XY_Plane"), [""])
sketch3.MapMode = "FlatFace"
sketch3.AttachmentOffset = App.Placement(App.Vector(0, 0, 7.5), App.Rotation())
sketch3.addGeometry(Part.Circle(App.Vector(0, -660, 0), App.Vector(0, 0, 1), 3.8), False)
sketch3.addGeometry(Part.Circle(App.Vector(0, -660, 0), App.Vector(0, 0, 1), 2.2), False)
sketch3.addGeometry(Part.Circle(App.Vector(0, -600, 0), App.Vector(0, 0, 1), 3.8), False)
sketch3.addGeometry(Part.Circle(App.Vector(0, -600, 0), App.Vector(0, 0, 1), 2.2), False)
sketch3.addGeometry(Part.Circle(App.Vector(0, -540, 0), App.Vector(0, 0, 1), 3.8), False)
sketch3.addGeometry(Part.Circle(App.Vector(0, -540, 0), App.Vector(0, 0, 1), 2.2), False)
sketch3.addGeometry(Part.Circle(App.Vector(0, -420, 0), App.Vector(0, 0, 1), 3.8), False)
sketch3.addGeometry(Part.Circle(App.Vector(0, -420, 0), App.Vector(0, 0, 1), 2.2), False)
sketch3.addGeometry(Part.Circle(App.Vector(0, -480, 0), App.Vector(0, 0, 1), 3.8), False)
sketch3.addGeometry(Part.Circle(App.Vector(0, -480, 0), App.Vector(0, 0, 1), 2.2), False)
sketch3.addGeometry(Part.Circle(App.Vector(0, -360, 0), App.Vector(0, 0, 1), 3.8), False)
sketch3.addGeometry(Part.Circle(App.Vector(0, -360, 0), App.Vector(0, 0, 1), 2.2), False)
sketch3.addGeometry(Part.Circle(App.Vector(0, -300, 0), App.Vector(0, 0, 1), 3.8), False)
sketch3.addGeometry(Part.Circle(App.Vector(0, -300, 0), App.Vector(0, 0, 1), 2.2), False)
sketch3.addGeometry(Part.Circle(App.Vector(0, -240, 0), App.Vector(0, 0, 1), 3.8), False)
sketch3.addGeometry(Part.Circle(App.Vector(0, -240, 0), App.Vector(0, 0, 1), 2.2), False)
sketch3.addGeometry(Part.Circle(App.Vector(0, -180, 0), App.Vector(0, 0, 1), 3.8), False)
sketch3.addGeometry(Part.Circle(App.Vector(0, -180, 0), App.Vector(0, 0, 1), 2.2), False)
sketch3.addGeometry(Part.Circle(App.Vector(0, -120, 0), App.Vector(0, 0, 1), 3.8), False)
sketch3.addGeometry(Part.Circle(App.Vector(0, -120, 0), App.Vector(0, 0, 1), 2.2), False)
sketch3.addGeometry(Part.Circle(App.Vector(0, -60, 0), App.Vector(0, 0, 1), 3.8), False)
sketch3.addGeometry(Part.Circle(App.Vector(0, -60, 0), App.Vector(0, 0, 1), 2.2), False)
sketch3.addGeometry(Part.Circle(App.Vector(0, 0, 0), App.Vector(0, 0, 1), 3.8), False)
sketch3.addGeometry(Part.Circle(App.Vector(0, 0, 0), App.Vector(0, 0, 1), 2.2), False)
sketch3.addGeometry(Part.Circle(App.Vector(0, 60, 0), App.Vector(0, 0, 1), 3.8), False)
sketch3.addGeometry(Part.Circle(App.Vector(0, 60, 0), App.Vector(0, 0, 1), 2.2), False)
sketch3.addGeometry(Part.Circle(App.Vector(0, 120, 0), App.Vector(0, 0, 1), 3.8), False)
sketch3.addGeometry(Part.Circle(App.Vector(0, 120, 0), App.Vector(0, 0, 1), 2.2), False)
sketch3.addGeometry(Part.Circle(App.Vector(0, 180, 0), App.Vector(0, 0, 1), 3.8), False)
sketch3.addGeometry(Part.Circle(App.Vector(0, 180, 0), App.Vector(0, 0, 1), 2.2), False)
sketch3.addGeometry(Part.Circle(App.Vector(0, 240, 0), App.Vector(0, 0, 1), 3.8), False)
sketch3.addGeometry(Part.Circle(App.Vector(0, 240, 0), App.Vector(0, 0, 1), 2.2), False)
sketch3.addGeometry(Part.Circle(App.Vector(0, 360, 0), App.Vector(0, 0, 1), 3.8), False)
sketch3.addGeometry(Part.Circle(App.Vector(0, 360, 0), App.Vector(0, 0, 1), 2.2), False)
sketch3.addGeometry(Part.Circle(App.Vector(0, 300, 0), App.Vector(0, 0, 1), 3.8), False)
sketch3.addGeometry(Part.Circle(App.Vector(0, 300, 0), App.Vector(0, 0, 1), 2.2), False)
sketch3.addGeometry(Part.Circle(App.Vector(0, 420, 0), App.Vector(0, 0, 1), 3.8), False)
sketch3.addGeometry(Part.Circle(App.Vector(0, 420, 0), App.Vector(0, 0, 1), 2.2), False)
sketch3.addGeometry(Part.Circle(App.Vector(0, 480, 0), App.Vector(0, 0, 1), 3.8), False)
sketch3.addGeometry(Part.Circle(App.Vector(0, 480, 0), App.Vector(0, 0, 1), 2.2), False)
sketch3.addGeometry(Part.Circle(App.Vector(0, 600, 0), App.Vector(0, 0, 1), 3.8), False)
sketch3.addGeometry(Part.Circle(App.Vector(0, 600, 0), App.Vector(0, 0, 1), 2.2), False)
sketch3.addGeometry(Part.Circle(App.Vector(0, 540, 0), App.Vector(0, 0, 1), 3.8), False)
sketch3.addGeometry(Part.Circle(App.Vector(0, 540, 0), App.Vector(0, 0, 1), 2.2), False)
sketch3.addGeometry(Part.Circle(App.Vector(0, 660, 0), App.Vector(0, 0, 1), 3.8), False)
sketch3.addGeometry(Part.Circle(App.Vector(0, 660, 0), App.Vector(0, 0, 1), 2.2), False)
sketch3.addConstraint(Sketcher.Constraint("Coincident", 22, 3, -1, 1))
sketch3.addConstraint(Sketcher.Constraint("Coincident", 23, 3, -1, 1))
sketch3.addConstraint(Sketcher.Constraint("Coincident", 1, 3, 0, 3))
sketch3.addConstraint(Sketcher.Constraint("Coincident", 3, 3, 2, 3))
sketch3.addConstraint(Sketcher.Constraint("Coincident", 5, 3, 4, 3))
sketch3.addConstraint(Sketcher.Constraint("Coincident", 7, 3, 6, 3))
sketch3.addConstraint(Sketcher.Constraint("Coincident", 9, 3, 8, 3))
sketch3.addConstraint(Sketcher.Constraint("Coincident", 11, 3, 10, 3))
sketch3.addConstraint(Sketcher.Constraint("Coincident", 13, 3, 12, 3))
sketch3.addConstraint(Sketcher.Constraint("Coincident", 15, 3, 14, 3))
sketch3.addConstraint(Sketcher.Constraint("Coincident", 17, 3, 16, 3))
sketch3.addConstraint(Sketcher.Constraint("Coincident", 19, 3, 18, 3))
sketch3.addConstraint(Sketcher.Constraint("Coincident", 21, 3, 20, 3))
sketch3.addConstraint(Sketcher.Constraint("Coincident", 25, 3, 24, 3))
sketch3.addConstraint(Sketcher.Constraint("Coincident", 27, 3, 26, 3))
sketch3.addConstraint(Sketcher.Constraint("Coincident", 29, 3, 28, 3))
sketch3.addConstraint(Sketcher.Constraint("Coincident", 31, 3, 30, 3))
sketch3.addConstraint(Sketcher.Constraint("Coincident", 33, 3, 32, 3))
sketch3.addConstraint(Sketcher.Constraint("Coincident", 35, 3, 34, 3))
sketch3.addConstraint(Sketcher.Constraint("Coincident", 37, 3, 36, 3))
sketch3.addConstraint(Sketcher.Constraint("Coincident", 39, 3, 38, 3))
sketch3.addConstraint(Sketcher.Constraint("Coincident", 41, 3, 40, 3))
sketch3.addConstraint(Sketcher.Constraint("Coincident", 43, 3, 42, 3))
sketch3.addConstraint(Sketcher.Constraint("Coincident", 45, 3, 44, 3))
sketch3.addConstraint(Sketcher.Constraint("Equal", 0, 2))
sketch3.addConstraint(Sketcher.Constraint("Equal", 1, 3))
sketch3.addConstraint(Sketcher.Constraint("Equal", 2, 4))
sketch3.addConstraint(Sketcher.Constraint("Equal", 3, 5))
sketch3.addConstraint(Sketcher.Constraint("Equal", 4, 6))
sketch3.addConstraint(Sketcher.Constraint("Equal", 5, 7))
sketch3.addConstraint(Sketcher.Constraint("Equal", 6, 8))
sketch3.addConstraint(Sketcher.Constraint("Equal", 7, 9))
sketch3.addConstraint(Sketcher.Constraint("Equal", 8, 10))
sketch3.addConstraint(Sketcher.Constraint("Equal", 9, 11))
sketch3.addConstraint(Sketcher.Constraint("Equal", 10, 12))
sketch3.addConstraint(Sketcher.Constraint("Equal", 11, 13))
sketch3.addConstraint(Sketcher.Constraint("Equal", 12, 14))
sketch3.addConstraint(Sketcher.Constraint("Equal", 13, 15))
sketch3.addConstraint(Sketcher.Constraint("Equal", 14, 16))
sketch3.addConstraint(Sketcher.Constraint("Equal", 15, 17))
sketch3.addConstraint(Sketcher.Constraint("Equal", 16, 18))
sketch3.addConstraint(Sketcher.Constraint("Equal", 17, 19))
sketch3.addConstraint(Sketcher.Constraint("Equal", 18, 20))
sketch3.addConstraint(Sketcher.Constraint("Equal", 19, 21))
sketch3.addConstraint(Sketcher.Constraint("Equal", 20, 22))
sketch3.addConstraint(Sketcher.Constraint("Equal", 21, 23))
sketch3.addConstraint(Sketcher.Constraint("Equal", 22, 24))
sketch3.addConstraint(Sketcher.Constraint("Equal", 23, 25))
sketch3.addConstraint(Sketcher.Constraint("Equal", 24, 26))
sketch3.addConstraint(Sketcher.Constraint("Equal", 25, 27))
sketch3.addConstraint(Sketcher.Constraint("Equal", 26, 28))
sketch3.addConstraint(Sketcher.Constraint("Equal", 27, 29))
sketch3.addConstraint(Sketcher.Constraint("Equal", 28, 30))
sketch3.addConstraint(Sketcher.Constraint("Equal", 29, 31))
sketch3.addConstraint(Sketcher.Constraint("Equal", 30, 32))
sketch3.addConstraint(Sketcher.Constraint("Equal", 31, 33))
sketch3.addConstraint(Sketcher.Constraint("Equal", 32, 34))
sketch3.addConstraint(Sketcher.Constraint("Equal", 33, 35))
sketch3.addConstraint(Sketcher.Constraint("Equal", 34, 36))
sketch3.addConstraint(Sketcher.Constraint("Equal", 35, 37))
sketch3.addConstraint(Sketcher.Constraint("Equal", 36, 38))
sketch3.addConstraint(Sketcher.Constraint("Equal", 37, 39))
sketch3.addConstraint(Sketcher.Constraint("Equal", 38, 40))
sketch3.addConstraint(Sketcher.Constraint("Equal", 39, 41))
sketch3.addConstraint(Sketcher.Constraint("Equal", 40, 42))
sketch3.addConstraint(Sketcher.Constraint("Equal", 41, 43))
sketch3.addConstraint(Sketcher.Constraint("Equal", 42, 44))
sketch3.addConstraint(Sketcher.Constraint("Equal", 43, 45))
sketch3.addConstraint(Sketcher.Constraint("Symmetric", 20, 3, 24, 3, -1, 1))
sketch3.addConstraint(Sketcher.Constraint("Symmetric", 18, 3, 26, 3, -1, 1))
sketch3.addConstraint(Sketcher.Constraint("Symmetric", 16, 3, 28, 3, -1, 1))
sketch3.addConstraint(Sketcher.Constraint("Symmetric", 14, 3, 30, 3, -1, 1))
sketch3.addConstraint(Sketcher.Constraint("Symmetric", 10, 3, 32, 3, -1, 1))
sketch3.addConstraint(Sketcher.Constraint("Symmetric", 12, 3, 34, 3, -1, 1))
sketch3.addConstraint(Sketcher.Constraint("Symmetric", 6, 3, 36, 3, -1, 1))
sketch3.addConstraint(Sketcher.Constraint("Symmetric", 8, 3, 38, 3, -1, 1))
sketch3.addConstraint(Sketcher.Constraint("Symmetric", 2, 3, 40, 3, -1, 1))
sketch3.addConstraint(Sketcher.Constraint("Symmetric", 4, 3, 42, 3, -1, 1))
sketch3.addConstraint(Sketcher.Constraint("Symmetric", 0, 3, 44, 3, -1, 1))
sketch3.addConstraint(Sketcher.Constraint("PointOnObject", 0, 3, -2))
sketch3.addConstraint(Sketcher.Constraint("PointOnObject", 2, 3, -2))
sketch3.addConstraint(Sketcher.Constraint("PointOnObject", 4, 3, -2))
sketch3.addConstraint(Sketcher.Constraint("PointOnObject", 6, 3, -2))
sketch3.addConstraint(Sketcher.Constraint("PointOnObject", 8, 3, -2))
sketch3.addConstraint(Sketcher.Constraint("PointOnObject", 10, 3, -2))
sketch3.addConstraint(Sketcher.Constraint("PointOnObject", 12, 3, -2))
sketch3.addConstraint(Sketcher.Constraint("PointOnObject", 14, 3, -2))
sketch3.addConstraint(Sketcher.Constraint("PointOnObject", 16, 3, -2))
sketch3.addConstraint(Sketcher.Constraint("PointOnObject", 18, 3, -2))
sketch3.addConstraint(Sketcher.Constraint("PointOnObject", 20, 3, -2))
sketch3.addConstraint(Sketcher.Constraint("Diameter", 0, Q("7.5 mm")))
sketch3.addConstraint(Sketcher.Constraint("Diameter", 1, Q("4.5 mm")))
sketch3.addConstraint(Sketcher.Constraint("DistanceY", 0, 3, -1, 1, Q("660 mm")))
sketch3.addConstraint(Sketcher.Constraint("DistanceY", 2, 3, -1, 1, Q("600 mm")))
sketch3.addConstraint(Sketcher.Constraint("DistanceY", 4, 3, -1, 1, Q("540 mm")))
sketch3.addConstraint(Sketcher.Constraint("DistanceY", 6, 3, -1, 1, Q("420 mm")))
sketch3.addConstraint(Sketcher.Constraint("DistanceY", 8, 3, -1, 1, Q("480 mm")))
sketch3.addConstraint(Sketcher.Constraint("DistanceY", 10, 3, -1, 1, Q("360 mm")))
sketch3.addConstraint(Sketcher.Constraint("DistanceY", 12, 3, -1, 1, Q("300 mm")))
sketch3.addConstraint(Sketcher.Constraint("DistanceY", 14, 3, -1, 1, Q("240 mm")))
sketch3.addConstraint(Sketcher.Constraint("DistanceY", 16, 3, -1, 1, Q("180 mm")))
sketch3.addConstraint(Sketcher.Constraint("DistanceY", 18, 3, -1, 1, Q("120 mm")))
sketch3.addConstraint(Sketcher.Constraint("DistanceY", 20, 3, -1, 1, Q("60 mm")))
pocket2 = body.newObject("PartDesign::Pocket", "Pocket001")
pocket2.Profile = sketch3
pocket2.Length = 5.3

doc.recompute()
